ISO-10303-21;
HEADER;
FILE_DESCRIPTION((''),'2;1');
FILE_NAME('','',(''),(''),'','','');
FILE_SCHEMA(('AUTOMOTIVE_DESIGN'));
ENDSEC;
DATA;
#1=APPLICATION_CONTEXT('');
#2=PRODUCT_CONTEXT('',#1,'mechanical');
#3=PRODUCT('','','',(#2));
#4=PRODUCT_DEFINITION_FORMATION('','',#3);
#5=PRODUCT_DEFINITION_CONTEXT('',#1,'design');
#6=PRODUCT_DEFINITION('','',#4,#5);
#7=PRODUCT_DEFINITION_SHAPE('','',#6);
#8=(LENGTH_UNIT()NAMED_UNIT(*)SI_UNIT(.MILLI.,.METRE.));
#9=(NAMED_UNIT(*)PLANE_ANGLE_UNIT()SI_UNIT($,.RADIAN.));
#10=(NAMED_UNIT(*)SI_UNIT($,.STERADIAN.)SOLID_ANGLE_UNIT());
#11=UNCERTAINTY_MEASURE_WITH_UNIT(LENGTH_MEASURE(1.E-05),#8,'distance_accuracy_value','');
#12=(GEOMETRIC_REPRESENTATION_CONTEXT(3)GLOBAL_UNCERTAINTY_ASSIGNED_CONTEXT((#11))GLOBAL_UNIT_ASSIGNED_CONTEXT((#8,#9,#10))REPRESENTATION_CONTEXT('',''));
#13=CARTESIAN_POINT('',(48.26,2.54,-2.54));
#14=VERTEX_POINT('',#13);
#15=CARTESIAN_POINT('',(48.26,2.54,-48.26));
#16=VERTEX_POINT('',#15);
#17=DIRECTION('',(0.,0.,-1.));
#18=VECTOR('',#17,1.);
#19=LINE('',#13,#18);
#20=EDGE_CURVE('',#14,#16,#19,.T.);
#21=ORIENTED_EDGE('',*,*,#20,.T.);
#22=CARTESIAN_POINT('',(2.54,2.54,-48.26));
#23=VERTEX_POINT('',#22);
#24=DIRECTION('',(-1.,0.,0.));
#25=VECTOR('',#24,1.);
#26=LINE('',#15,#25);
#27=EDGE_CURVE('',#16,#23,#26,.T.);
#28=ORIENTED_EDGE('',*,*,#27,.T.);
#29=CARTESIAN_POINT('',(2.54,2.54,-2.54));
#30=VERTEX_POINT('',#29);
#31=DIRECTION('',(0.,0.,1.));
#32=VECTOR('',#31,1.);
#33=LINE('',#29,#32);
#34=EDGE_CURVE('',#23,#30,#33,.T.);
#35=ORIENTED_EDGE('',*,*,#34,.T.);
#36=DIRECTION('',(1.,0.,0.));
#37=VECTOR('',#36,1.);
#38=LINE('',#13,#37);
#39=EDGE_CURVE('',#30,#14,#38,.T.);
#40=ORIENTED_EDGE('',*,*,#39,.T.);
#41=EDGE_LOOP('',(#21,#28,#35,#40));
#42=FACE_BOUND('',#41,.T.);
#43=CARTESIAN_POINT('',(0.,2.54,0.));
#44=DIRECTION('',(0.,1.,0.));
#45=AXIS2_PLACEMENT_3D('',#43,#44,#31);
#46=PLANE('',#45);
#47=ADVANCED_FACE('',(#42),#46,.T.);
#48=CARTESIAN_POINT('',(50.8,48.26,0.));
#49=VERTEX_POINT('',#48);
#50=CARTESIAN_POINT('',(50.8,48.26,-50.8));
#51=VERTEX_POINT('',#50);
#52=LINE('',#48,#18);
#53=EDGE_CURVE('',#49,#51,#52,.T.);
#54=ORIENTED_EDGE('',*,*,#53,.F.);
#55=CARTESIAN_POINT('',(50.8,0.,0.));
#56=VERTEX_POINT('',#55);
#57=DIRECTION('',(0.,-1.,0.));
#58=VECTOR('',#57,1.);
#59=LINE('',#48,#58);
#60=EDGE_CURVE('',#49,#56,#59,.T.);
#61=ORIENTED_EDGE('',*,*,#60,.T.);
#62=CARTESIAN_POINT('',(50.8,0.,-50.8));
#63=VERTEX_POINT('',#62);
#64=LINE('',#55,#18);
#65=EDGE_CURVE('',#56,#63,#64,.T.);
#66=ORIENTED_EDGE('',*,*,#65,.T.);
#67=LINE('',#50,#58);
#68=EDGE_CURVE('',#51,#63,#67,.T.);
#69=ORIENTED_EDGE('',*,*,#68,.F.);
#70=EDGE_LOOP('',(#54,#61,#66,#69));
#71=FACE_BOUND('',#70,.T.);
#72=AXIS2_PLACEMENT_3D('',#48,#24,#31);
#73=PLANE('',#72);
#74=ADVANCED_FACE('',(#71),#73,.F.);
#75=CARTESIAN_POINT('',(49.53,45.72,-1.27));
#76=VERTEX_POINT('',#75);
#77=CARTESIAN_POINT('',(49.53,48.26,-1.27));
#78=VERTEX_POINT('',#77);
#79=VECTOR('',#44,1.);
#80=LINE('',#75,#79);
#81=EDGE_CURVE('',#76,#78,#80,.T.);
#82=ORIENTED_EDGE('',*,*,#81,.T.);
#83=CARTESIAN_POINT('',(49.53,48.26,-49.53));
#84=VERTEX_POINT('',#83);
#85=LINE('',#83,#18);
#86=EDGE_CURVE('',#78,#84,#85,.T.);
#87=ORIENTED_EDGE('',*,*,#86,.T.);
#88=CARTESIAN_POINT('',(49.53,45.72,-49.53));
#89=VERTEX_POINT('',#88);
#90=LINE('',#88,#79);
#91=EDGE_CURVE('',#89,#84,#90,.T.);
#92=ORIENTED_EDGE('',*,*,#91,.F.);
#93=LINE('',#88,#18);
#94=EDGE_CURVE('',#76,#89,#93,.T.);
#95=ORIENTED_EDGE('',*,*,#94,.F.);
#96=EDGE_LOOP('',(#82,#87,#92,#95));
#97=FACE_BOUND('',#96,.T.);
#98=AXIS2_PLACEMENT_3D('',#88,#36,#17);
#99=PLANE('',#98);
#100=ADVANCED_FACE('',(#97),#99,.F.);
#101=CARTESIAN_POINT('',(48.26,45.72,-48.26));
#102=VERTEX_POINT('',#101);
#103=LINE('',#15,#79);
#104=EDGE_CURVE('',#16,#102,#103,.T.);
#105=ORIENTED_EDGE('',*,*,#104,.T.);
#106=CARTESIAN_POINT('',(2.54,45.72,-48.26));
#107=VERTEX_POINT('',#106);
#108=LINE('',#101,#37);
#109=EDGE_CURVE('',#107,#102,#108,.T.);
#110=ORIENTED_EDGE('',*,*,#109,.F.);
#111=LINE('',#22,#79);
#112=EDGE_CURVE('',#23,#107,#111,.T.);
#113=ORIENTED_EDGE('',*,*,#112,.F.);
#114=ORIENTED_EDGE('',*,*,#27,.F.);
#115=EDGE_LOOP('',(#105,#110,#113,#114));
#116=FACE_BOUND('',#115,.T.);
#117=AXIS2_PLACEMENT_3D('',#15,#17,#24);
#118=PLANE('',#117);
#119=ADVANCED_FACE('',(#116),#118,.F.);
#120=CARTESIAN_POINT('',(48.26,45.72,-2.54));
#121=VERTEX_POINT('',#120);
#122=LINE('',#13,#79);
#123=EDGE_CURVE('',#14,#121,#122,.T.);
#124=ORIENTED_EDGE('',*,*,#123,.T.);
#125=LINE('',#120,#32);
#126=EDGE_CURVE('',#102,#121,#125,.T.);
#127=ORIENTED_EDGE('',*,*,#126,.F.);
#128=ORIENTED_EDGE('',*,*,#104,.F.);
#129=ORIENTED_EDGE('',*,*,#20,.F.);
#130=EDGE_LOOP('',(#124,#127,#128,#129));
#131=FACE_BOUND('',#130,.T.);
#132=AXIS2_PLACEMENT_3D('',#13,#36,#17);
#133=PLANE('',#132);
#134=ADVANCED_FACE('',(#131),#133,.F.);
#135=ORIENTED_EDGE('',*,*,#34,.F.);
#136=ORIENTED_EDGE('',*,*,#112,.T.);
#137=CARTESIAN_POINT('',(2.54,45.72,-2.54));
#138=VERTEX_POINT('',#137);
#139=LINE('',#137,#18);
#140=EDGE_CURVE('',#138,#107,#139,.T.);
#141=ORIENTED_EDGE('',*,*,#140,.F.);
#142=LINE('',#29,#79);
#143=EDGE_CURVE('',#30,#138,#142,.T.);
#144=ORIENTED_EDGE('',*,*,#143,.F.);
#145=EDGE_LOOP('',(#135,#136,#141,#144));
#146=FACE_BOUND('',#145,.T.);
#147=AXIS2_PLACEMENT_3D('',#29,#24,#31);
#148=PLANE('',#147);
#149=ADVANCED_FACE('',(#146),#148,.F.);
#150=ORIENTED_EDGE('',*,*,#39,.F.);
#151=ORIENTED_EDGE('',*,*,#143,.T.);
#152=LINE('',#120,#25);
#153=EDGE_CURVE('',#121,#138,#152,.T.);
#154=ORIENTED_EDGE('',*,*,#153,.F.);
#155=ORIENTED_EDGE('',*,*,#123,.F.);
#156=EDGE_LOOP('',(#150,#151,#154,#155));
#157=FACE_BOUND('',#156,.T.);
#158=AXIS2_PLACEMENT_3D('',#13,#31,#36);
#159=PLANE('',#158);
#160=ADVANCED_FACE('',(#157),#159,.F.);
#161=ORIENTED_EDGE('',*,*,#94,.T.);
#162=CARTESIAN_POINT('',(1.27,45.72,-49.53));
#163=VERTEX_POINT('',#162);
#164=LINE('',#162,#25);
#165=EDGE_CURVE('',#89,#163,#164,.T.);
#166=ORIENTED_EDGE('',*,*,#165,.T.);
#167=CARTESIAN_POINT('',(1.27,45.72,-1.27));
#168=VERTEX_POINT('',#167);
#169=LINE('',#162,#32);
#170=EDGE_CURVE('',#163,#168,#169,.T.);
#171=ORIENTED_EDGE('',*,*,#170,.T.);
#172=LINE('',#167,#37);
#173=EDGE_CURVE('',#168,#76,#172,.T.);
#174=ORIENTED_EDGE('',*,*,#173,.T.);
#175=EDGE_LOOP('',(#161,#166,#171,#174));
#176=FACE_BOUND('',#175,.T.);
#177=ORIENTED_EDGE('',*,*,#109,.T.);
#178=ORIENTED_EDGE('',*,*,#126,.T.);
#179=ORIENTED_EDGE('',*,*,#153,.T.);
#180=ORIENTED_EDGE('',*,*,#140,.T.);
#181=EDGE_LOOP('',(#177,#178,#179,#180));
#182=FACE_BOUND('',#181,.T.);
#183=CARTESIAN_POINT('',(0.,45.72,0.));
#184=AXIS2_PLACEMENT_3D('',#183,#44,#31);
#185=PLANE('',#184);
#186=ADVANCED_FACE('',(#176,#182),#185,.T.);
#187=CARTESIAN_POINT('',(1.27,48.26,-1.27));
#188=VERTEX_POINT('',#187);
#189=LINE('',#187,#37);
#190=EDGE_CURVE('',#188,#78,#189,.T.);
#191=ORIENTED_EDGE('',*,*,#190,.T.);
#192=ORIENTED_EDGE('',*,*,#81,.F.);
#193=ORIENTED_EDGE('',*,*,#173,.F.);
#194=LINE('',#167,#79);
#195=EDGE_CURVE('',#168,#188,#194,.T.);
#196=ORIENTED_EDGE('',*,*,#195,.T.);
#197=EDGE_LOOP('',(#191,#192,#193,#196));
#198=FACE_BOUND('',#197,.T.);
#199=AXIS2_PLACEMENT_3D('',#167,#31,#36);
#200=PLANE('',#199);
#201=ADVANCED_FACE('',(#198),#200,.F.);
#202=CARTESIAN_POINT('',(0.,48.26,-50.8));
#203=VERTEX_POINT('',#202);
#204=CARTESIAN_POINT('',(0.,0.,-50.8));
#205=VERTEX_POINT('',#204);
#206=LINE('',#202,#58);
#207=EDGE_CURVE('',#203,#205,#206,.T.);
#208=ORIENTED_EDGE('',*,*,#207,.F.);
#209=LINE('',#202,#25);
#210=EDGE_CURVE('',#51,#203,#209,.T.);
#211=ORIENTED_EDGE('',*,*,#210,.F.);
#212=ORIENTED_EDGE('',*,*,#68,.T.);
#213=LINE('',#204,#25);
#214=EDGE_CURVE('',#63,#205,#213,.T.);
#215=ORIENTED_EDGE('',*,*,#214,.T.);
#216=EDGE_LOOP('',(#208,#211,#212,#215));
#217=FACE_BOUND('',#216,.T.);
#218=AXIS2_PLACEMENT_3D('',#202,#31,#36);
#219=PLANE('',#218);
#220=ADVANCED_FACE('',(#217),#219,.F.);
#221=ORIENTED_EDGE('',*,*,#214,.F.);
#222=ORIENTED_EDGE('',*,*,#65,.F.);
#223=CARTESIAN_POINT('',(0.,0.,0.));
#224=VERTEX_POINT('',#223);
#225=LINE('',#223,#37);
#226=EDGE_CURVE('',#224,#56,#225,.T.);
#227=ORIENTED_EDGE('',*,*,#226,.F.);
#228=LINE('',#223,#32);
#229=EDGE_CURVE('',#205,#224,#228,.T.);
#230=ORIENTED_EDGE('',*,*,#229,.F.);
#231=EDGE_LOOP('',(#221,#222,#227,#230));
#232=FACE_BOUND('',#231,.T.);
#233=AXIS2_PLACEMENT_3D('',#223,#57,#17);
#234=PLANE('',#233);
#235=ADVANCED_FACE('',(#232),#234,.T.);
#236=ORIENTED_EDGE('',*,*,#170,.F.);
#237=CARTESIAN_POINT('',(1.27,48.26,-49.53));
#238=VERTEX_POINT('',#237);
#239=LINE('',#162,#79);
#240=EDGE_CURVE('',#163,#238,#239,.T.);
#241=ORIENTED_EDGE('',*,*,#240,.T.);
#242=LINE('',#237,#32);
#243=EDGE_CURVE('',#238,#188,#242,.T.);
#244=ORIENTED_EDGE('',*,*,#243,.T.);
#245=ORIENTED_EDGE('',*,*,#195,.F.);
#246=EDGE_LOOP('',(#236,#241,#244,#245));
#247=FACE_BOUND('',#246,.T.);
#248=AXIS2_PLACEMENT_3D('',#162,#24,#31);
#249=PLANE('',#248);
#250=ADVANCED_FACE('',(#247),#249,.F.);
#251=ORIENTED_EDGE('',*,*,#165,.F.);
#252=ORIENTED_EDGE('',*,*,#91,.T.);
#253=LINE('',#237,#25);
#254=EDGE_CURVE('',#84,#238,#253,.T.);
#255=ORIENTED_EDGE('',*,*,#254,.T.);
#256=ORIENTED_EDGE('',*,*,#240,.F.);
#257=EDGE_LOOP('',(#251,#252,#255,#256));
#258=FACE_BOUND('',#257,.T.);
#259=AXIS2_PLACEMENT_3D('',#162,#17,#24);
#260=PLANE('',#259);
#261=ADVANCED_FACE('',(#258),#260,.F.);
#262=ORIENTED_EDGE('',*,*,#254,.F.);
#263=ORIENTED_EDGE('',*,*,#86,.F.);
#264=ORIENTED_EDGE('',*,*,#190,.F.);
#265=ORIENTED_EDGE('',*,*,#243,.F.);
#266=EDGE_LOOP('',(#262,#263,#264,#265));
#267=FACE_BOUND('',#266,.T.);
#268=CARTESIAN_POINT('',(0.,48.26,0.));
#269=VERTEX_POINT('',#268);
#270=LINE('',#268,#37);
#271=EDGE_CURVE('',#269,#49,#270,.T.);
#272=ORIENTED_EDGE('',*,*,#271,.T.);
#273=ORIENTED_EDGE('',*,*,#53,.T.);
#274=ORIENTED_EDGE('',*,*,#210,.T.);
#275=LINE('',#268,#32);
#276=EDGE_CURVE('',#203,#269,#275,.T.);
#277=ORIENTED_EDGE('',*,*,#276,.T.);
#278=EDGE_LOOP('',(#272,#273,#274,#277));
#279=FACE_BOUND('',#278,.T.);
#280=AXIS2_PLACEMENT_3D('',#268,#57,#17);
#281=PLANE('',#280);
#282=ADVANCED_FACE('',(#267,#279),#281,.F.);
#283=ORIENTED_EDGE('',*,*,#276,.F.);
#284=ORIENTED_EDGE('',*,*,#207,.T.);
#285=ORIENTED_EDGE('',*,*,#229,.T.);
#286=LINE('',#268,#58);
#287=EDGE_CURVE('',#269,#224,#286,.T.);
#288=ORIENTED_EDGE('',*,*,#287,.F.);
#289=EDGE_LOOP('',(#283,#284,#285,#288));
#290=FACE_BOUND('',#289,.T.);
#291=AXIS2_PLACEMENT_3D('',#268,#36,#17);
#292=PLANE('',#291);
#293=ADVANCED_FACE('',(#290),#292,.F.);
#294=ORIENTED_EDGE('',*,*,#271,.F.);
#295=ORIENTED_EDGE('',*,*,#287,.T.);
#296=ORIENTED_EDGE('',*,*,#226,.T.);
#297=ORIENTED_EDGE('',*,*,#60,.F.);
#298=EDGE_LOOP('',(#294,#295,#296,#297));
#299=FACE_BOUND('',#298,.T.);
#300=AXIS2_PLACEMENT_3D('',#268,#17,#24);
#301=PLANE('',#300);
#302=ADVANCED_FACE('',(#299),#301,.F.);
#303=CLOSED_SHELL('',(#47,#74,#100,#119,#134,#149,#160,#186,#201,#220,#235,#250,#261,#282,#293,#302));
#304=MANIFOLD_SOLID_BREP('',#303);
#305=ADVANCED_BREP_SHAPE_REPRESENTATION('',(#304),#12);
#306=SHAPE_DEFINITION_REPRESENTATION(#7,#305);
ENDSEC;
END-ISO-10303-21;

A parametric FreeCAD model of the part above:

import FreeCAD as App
import Part
import Sketcher
from FreeCAD import Vector
Q = App.Units.Quantity

doc = App.newDocument("Part")
body = doc.addObject("PartDesign::Body", "Body")

# Sketch on XZ plane
sketch1 = doc.addObject("Sketcher::SketchObject", "Sketch")
body.addObject(sketch1)
sketch1.AttachmentSupport = (doc.XZ_Plane, [""])
sketch1.MapMode = "FlatFace"
sketch1.addGeometry(Part.LineSegment(Vector(0, -50.8, 0), Vector(0, 0, 0)), False)
sketch1.addGeometry(Part.LineSegment(Vector(0, 0, 0), Vector(50.8, 0, 0)), False)
sketch1.addGeometry(Part.LineSegment(Vector(50.8, 0, 0), Vector(50.8, -50.8, 0)), False)
sketch1.addGeometry(Part.LineSegment(Vector(50.8, -50.8, 0), Vector(0, -50.8, 0)), False)
sketch1.addConstraint(Sketcher.Constraint("Coincident", 0, 2, 1, 1))
sketch1.addConstraint(Sketcher.Constraint("Coincident", 1, 2, 2, 1))
sketch1.addConstraint(Sketcher.Constraint("Coincident", 2, 2, 3, 1))
sketch1.addConstraint(Sketcher.Constraint("Coincident", 3, 2, 0, 1))
sketch1.addConstraint(Sketcher.Constraint("Vertical", 0))
sketch1.addConstraint(Sketcher.Constraint("Horizontal", 1))
sketch1.addConstraint(Sketcher.Constraint("Vertical", 2))
sketch1.addConstraint(Sketcher.Constraint("Horizontal", 3))
sketch1.addConstraint(Sketcher.Constraint("Coincident", 0, 2, -1, 1))
sketch1.addConstraint(Sketcher.Constraint("Equal", 3, 0))
sketch1.addConstraint(Sketcher.Constraint("DistanceX", 1, 1, 1, 2, Q("2 in")))
pad1 = doc.addObject("PartDesign::Pad", "Pad")
body.addObject(pad1)
pad1.Profile = sketch1
pad1.Length = Q("1.9 in")
pad1.Reversed = True

# Sketch on XZ plane
sketch2 = doc.addObject("Sketcher::SketchObject", "Sketch001")
body.addObject(sketch2)
sketch2.AttachmentSupport = (doc.XZ_Plane, [""])
sketch2.MapMode = "FlatFace"
sketch2.AttachmentOffset = App.Placement(Vector(0, 0, -1.9 * 25.4), App.Rotation())
sketch2.addGeometry(Part.LineSegment(Vector(2.54, -48.26, 0), Vector(2.54, -2.54, 0)), False)
sketch2.addGeometry(Part.LineSegment(Vector(2.54, -2.54, 0), Vector(48.26, -2.54, 0)), False)
sketch2.addGeometry(Part.LineSegment(Vector(48.26, -2.54, 0), Vector(48.26, -48.26, 0)), False)
sketch2.addGeometry(Part.LineSegment(Vector(48.26, -48.26, 0), Vector(2.54, -48.26, 0)), False)
sketch2.addConstraint(Sketcher.Constraint("Coincident", 0, 2, 1, 1))
sketch2.addConstraint(Sketcher.Constraint("Coincident", 1, 2, 2, 1))
sketch2.addConstraint(Sketcher.Constraint("Coincident", 2, 2, 3, 1))
sketch2.addConstraint(Sketcher.Constraint("Coincident", 3, 2, 0, 1))
sketch2.addConstraint(Sketcher.Constraint("Vertical", 0))
sketch2.addConstraint(Sketcher.Constraint("Horizontal", 1))
sketch2.addConstraint(Sketcher.Constraint("Vertical", 2))
sketch2.addConstraint(Sketcher.Constraint("Horizontal", 3))
sketch2.addConstraint(Sketcher.Constraint("Equal", 3, 0))
sketch2.addConstraint(Sketcher.Constraint("DistanceX", 1, 1, 1, 2, Q("1.8 in")))
sketch2.addConstraint(Sketcher.Constraint("DistanceX", -1, 1, 0, 2, Q("0.1 in")))
sketch2.addConstraint(Sketcher.Constraint("DistanceY", 0, 2, -1, 1, Q("0.1 in")))
pocket1 = doc.addObject("PartDesign::Pocket", "Pocket")
body.addObject(pocket1)
pocket1.Profile = sketch2
pocket1.Length = Q("1.8 in")
pocket1.Reversed = True

# Sketch on XZ plane
sketch3 = doc.addObject("Sketcher::SketchObject", "Sketch002")
body.addObject(sketch3)
sketch3.AttachmentSupport = (doc.XZ_Plane, [""])
sketch3.MapMode = "FlatFace"
sketch3.AttachmentOffset = App.Placement(Vector(0, 0, -1.9 * 25.4), App.Rotation())
sketch3.addGeometry(Part.LineSegment(Vector(1.27, -49.53, 0), Vector(1.27, -1.27, 0)), False)
sketch3.addGeometry(Part.LineSegment(Vector(1.27, -1.27, 0), Vector(49.53, -1.27, 0)), False)
sketch3.addGeometry(Part.LineSegment(Vector(49.53, -1.27, 0), Vector(49.53, -49.53, 0)), False)
sketch3.addGeometry(Part.LineSegment(Vector(49.53, -49.53, 0), Vector(1.27, -49.53, 0)), False)
sketch3.addConstraint(Sketcher.Constraint("Coincident", 0, 2, 1, 1))
sketch3.addConstraint(Sketcher.Constraint("Coincident", 1, 2, 2, 1))
sketch3.addConstraint(Sketcher.Constraint("Coincident", 2, 2, 3, 1))
sketch3.addConstraint(Sketcher.Constraint("Coincident", 3, 2, 0, 1))
sketch3.addConstraint(Sketcher.Constraint("Vertical", 0))
sketch3.addConstraint(Sketcher.Constraint("Horizontal", 1))
sketch3.addConstraint(Sketcher.Constraint("Vertical", 2))
sketch3.addConstraint(Sketcher.Constraint("Horizontal", 3))
sketch3.addConstraint(Sketcher.Constraint("Equal", 3, 0))
sketch3.addConstraint(Sketcher.Constraint("DistanceX", 1, 1, 1, 2, Q("1.9 in")))
sketch3.addConstraint(Sketcher.Constraint("DistanceX", -1, 1, 0, 2, Q("0.05 in")))
sketch3.addConstraint(Sketcher.Constraint("DistanceY", 0, 2, -1, 1, Q("0.05 in")))
pocket2 = doc.addObject("PartDesign::Pocket", "Pocket001")
body.addObject(pocket2)
pocket2.Profile = sketch3
pocket2.Length = Q("0.1 in")
pocket2.Reversed = True

doc.recompute()
